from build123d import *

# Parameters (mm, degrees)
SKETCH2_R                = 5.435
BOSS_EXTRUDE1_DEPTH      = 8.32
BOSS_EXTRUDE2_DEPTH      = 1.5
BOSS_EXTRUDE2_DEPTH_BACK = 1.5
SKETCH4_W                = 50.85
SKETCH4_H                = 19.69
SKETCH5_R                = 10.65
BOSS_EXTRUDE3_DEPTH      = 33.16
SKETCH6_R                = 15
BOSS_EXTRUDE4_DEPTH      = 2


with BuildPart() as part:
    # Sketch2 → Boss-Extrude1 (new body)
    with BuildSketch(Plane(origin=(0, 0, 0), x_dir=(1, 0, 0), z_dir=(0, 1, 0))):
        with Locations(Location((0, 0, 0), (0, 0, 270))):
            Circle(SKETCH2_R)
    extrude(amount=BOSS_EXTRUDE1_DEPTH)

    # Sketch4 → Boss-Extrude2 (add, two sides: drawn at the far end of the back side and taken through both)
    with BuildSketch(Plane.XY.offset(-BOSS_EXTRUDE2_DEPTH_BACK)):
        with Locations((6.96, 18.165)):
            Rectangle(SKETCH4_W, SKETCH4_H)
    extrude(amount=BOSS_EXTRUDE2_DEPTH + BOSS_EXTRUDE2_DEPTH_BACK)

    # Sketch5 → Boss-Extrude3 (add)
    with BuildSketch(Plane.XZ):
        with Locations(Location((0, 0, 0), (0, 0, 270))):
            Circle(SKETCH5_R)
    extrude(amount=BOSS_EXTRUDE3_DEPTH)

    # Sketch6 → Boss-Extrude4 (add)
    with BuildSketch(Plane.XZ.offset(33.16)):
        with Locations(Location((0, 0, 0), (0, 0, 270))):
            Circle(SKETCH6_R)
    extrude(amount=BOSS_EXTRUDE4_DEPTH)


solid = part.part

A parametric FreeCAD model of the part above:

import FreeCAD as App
import Part
import Sketcher

V = App.Vector

doc = App.newDocument("Part")
body = doc.addObject("PartDesign::Body", "Body")

# Sketch on XZ plane
sketch1 = doc.addObject("Sketcher::SketchObject", "Sketch")
body.addObject(sketch1)
sketch1.AttachmentSupport = (doc.XZ_Plane, [""])
sketch1.MapMode = "FlatFace"
sketch1.addGeometry(Part.Circle(V(0, 0, 0), V(0, 0, 1), 5), False)
sketch1.addConstraint([
    Sketcher.Constraint("Coincident", 0, 3, -1, 1),
    Sketcher.Constraint("Diameter", 0, 10.87),
])
pad1 = doc.addObject("PartDesign::Pad", "Pad")
body.addObject(pad1)
pad1.Profile = sketch1
pad1.Length = 8.32
pad1.Reversed = True

# Sketch on XY plane
sketch2 = doc.addObject("Sketcher::SketchObject", "Sketch001")
body.addObject(sketch2)
sketch2.AttachmentSupport = (doc.XY_Plane, [""])
sketch2.MapMode = "FlatFace"
sketch2.addGeometry([
    Part.LineSegment(V(-18, 28, 0), V(-18, 8, 0)),
    Part.LineSegment(V(-18, 8, 0), V(32, 8, 0)),
    Part.LineSegment(V(32, 8, 0), V(32, 28, 0)),
    Part.LineSegment(V(32, 28, 0), V(-18, 28, 0)),
], False)
sketch2.addConstraint([
    Sketcher.Constraint("Coincident", 0, 2, 1, 1),
    Sketcher.Constraint("Coincident", 1, 2, 2, 1),
    Sketcher.Constraint("Coincident", 2, 2, 3, 1),
    Sketcher.Constraint("Coincident", 3, 2, 0, 1),
    Sketcher.Constraint("Vertical", 0),
    Sketcher.Constraint("Horizontal", 1),
    Sketcher.Constraint("Vertical", 2),
    Sketcher.Constraint("Horizontal", 3),
    Sketcher.Constraint("DistanceX", 1, 1, 1, 2, 50.85),
    Sketcher.Constraint("DistanceY", 0, 2, 0, 1, 19.69),
    Sketcher.Constraint("DistanceY", -1, 1, 0, 2, 8.32),
    Sketcher.Constraint("DistanceX", 0, 2, -1, 1, 18.465),
])
pad2 = doc.addObject("PartDesign::Pad", "Pad001")
body.addObject(pad2)
pad2.Profile = sketch2
pad2.Type = "TwoLengths"
pad2.Length = 1.5
pad2.Length2 = 1.5

# Sketch on XZ plane
sketch3 = doc.addObject("Sketcher::SketchObject", "Sketch002")
body.addObject(sketch3)
sketch3.AttachmentSupport = (doc.XZ_Plane, [""])
sketch3.MapMode = "FlatFace"
sketch3.addGeometry(Part.Circle(V(0, 0, 0), V(0, 0, 1), 11), False)
sketch3.addConstraint([
    Sketcher.Constraint("Coincident", 0, 3, -1, 1),
    Sketcher.Constraint("Diameter", 0, 21.3),
])
pad3 = doc.addObject("PartDesign::Pad", "Pad002")
body.addObject(pad3)
pad3.Profile = sketch3
pad3.Length = 33.16

# Sketch on XZ plane
sketch4 = doc.addObject("Sketcher::SketchObject", "Sketch003")
body.addObject(sketch4)
sketch4.AttachmentSupport = (doc.XZ_Plane, [""])
sketch4.MapMode = "FlatFace"
sketch4.AttachmentOffset = App.Placement(V(0, 0, 33.16), App.Rotation())
sketch4.addGeometry(Part.Circle(V(0, 0, 0), V(0, 0, 1), 15), False)
sketch4.addConstraint([
    Sketcher.Constraint("Coincident", 0, 3, -1, 1),
    Sketcher.Constraint("Diameter", 0, 30.0),
])
pad4 = doc.addObject("PartDesign::Pad", "Pad003")
body.addObject(pad4)
pad4.Profile = sketch4
pad4.Length = 2

doc.recompute()
